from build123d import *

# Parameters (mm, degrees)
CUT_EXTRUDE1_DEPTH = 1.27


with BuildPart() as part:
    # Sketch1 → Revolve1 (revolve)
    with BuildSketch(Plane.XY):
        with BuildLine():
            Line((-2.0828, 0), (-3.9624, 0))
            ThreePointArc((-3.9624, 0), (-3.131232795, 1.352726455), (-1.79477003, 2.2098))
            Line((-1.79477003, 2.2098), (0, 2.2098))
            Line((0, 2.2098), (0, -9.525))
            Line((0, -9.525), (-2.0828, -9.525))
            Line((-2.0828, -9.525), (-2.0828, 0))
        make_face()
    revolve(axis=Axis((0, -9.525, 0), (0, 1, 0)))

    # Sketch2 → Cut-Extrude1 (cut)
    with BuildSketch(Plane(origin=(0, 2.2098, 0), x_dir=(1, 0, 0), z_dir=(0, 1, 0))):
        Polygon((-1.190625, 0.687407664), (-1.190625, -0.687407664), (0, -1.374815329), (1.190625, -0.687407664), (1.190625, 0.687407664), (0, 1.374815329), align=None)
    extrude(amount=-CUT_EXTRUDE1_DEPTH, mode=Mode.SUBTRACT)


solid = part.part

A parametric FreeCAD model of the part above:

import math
import FreeCAD as App
import Part
import Sketcher
from FreeCAD import Vector
Q = App.Units.Quantity

doc = App.newDocument("Part")
body = doc.addObject("PartDesign::Body", "Body")

sketch1 = body.newObject("Sketcher::SketchObject", "Sketch")
sketch1.AttachmentSupport = (doc.getObject("XY_Plane"), [""])
sketch1.MapMode = "FlatFace"
sketch1.addGeometry([
    Part.LineSegment(Vector(-4, 0, 0), Vector(-2.1, 0, 0)),
    Part.LineSegment(Vector(-2.1, 0, 0), Vector(-2.1, -9.5, 0)),
    Part.LineSegment(Vector(-2.1, -9.5, 0), Vector(0, -9.5, 0)),
    Part.LineSegment(Vector(0, -9.5, 0), Vector(0, 2.2, 0)),
    Part.LineSegment(Vector(0, 2.2, 0), Vector(-1.8, 2.2, 0)),
    Part.ArcOfCircle(Part.Circle(Vector(-0.6, -1.1, 0), Vector(0, 0, 1), 3.6), math.radians(110), math.radians(161)),
], False)
sketch1.addConstraint([
    Sketcher.Constraint("Coincident", 0, 2, 1, 1),
    Sketcher.Constraint("Coincident", 1, 2, 2, 1),
    Sketcher.Constraint("Coincident", 2, 2, 3, 1),
    Sketcher.Constraint("Coincident", 3, 2, 4, 1),
    Sketcher.Constraint("Coincident", 4, 2, 5, 1),
    Sketcher.Constraint("Coincident", 5, 2, 0, 1),
    Sketcher.Constraint("Horizontal", 0),
    Sketcher.Constraint("Vertical", 1),
    Sketcher.Constraint("Horizontal", 2),
    Sketcher.Constraint("Vertical", 3),
    Sketcher.Constraint("Horizontal", 4),
    Sketcher.Constraint("PointOnObject", 0, 2, -1),
    Sketcher.Constraint("PointOnObject", 2, 2, -2),
    Sketcher.Constraint("DistanceX", 0, 1, 0, 2, Q("0.074 in")),
    Sketcher.Constraint("DistanceX", 2, 1, 2, 2, Q("0.082 in")),
    Sketcher.Constraint("DistanceY", 1, 2, 1, 1, Q("0.375 in")),
    Sketcher.Constraint("DistanceY", 3, 1, 3, 2, Q("0.462 in")),
    Sketcher.Constraint("Radius", 5, 3.561276),
    Sketcher.Constraint("DistanceX", 4, 2, 4, 1, 1.79477),
])
revolution = body.newObject("PartDesign::Revolution", "Revolution")
revolution.Profile = sketch1
revolution.ReferenceAxis = (sketch1, ["V_Axis"])
revolution.Angle = 360

sketch2 = body.newObject("Sketcher::SketchObject", "Sketch001")
sketch2.AttachmentSupport = (doc.getObject("XZ_Plane"), [""])
sketch2.MapMode = "FlatFace"
sketch2.AttachmentOffset = App.Placement(Vector(0, 0, -0.087 * 25.4), App.Rotation())
sketch2.addGeometry([
    Part.LineSegment(Vector(-1.2, -0.7, 0), Vector(-1.2, 0.7, 0)),
    Part.LineSegment(Vector(-1.2, 0.7, 0), Vector(0, 1.4, 0)),
    Part.LineSegment(Vector(0, 1.4, 0), Vector(1.2, 0.7, 0)),
    Part.LineSegment(Vector(1.2, 0.7, 0), Vector(1.2, -0.7, 0)),
    Part.LineSegment(Vector(1.2, -0.7, 0), Vector(0, -1.4, 0)),
    Part.LineSegment(Vector(0, -1.4, 0), Vector(-1.2, -0.7, 0)),
], False)
sketch2.addConstraint([
    Sketcher.Constraint("Coincident", 0, 2, 1, 1),
    Sketcher.Constraint("Coincident", 1, 2, 2, 1),
    Sketcher.Constraint("Coincident", 2, 2, 3, 1),
    Sketcher.Constraint("Coincident", 3, 2, 4, 1),
    Sketcher.Constraint("Coincident", 4, 2, 5, 1),
    Sketcher.Constraint("Coincident", 5, 2, 0, 1),
    Sketcher.Constraint("Vertical", 0),
    Sketcher.Constraint("Vertical", 3),
    Sketcher.Constraint("Symmetric", 0, 2, 3, 2, -1, 1),
    Sketcher.Constraint("Symmetric", 1, 2, 4, 2, -1, 1),
    Sketcher.Constraint("PointOnObject", 1, 2, -2),
    Sketcher.Constraint("Parallel", 2, 5),
    Sketcher.Constraint("Horizontal", 0, 2, 2, 2),
    Sketcher.Constraint("Angle", 1, Q("30 deg")),
    Sketcher.Constraint("DistanceX", 0, 2, -1, 1, Q("0.046875 in")),
    Sketcher.Constraint("DistanceY", 0, 1, 0, 2, 1.374815),
])
pocket1 = body.newObject("PartDesign::Pocket", "Pocket")
pocket1.Profile = sketch2
pocket1.Length = Q("0.05 in")
pocket1.Reversed = True

doc.recompute()
